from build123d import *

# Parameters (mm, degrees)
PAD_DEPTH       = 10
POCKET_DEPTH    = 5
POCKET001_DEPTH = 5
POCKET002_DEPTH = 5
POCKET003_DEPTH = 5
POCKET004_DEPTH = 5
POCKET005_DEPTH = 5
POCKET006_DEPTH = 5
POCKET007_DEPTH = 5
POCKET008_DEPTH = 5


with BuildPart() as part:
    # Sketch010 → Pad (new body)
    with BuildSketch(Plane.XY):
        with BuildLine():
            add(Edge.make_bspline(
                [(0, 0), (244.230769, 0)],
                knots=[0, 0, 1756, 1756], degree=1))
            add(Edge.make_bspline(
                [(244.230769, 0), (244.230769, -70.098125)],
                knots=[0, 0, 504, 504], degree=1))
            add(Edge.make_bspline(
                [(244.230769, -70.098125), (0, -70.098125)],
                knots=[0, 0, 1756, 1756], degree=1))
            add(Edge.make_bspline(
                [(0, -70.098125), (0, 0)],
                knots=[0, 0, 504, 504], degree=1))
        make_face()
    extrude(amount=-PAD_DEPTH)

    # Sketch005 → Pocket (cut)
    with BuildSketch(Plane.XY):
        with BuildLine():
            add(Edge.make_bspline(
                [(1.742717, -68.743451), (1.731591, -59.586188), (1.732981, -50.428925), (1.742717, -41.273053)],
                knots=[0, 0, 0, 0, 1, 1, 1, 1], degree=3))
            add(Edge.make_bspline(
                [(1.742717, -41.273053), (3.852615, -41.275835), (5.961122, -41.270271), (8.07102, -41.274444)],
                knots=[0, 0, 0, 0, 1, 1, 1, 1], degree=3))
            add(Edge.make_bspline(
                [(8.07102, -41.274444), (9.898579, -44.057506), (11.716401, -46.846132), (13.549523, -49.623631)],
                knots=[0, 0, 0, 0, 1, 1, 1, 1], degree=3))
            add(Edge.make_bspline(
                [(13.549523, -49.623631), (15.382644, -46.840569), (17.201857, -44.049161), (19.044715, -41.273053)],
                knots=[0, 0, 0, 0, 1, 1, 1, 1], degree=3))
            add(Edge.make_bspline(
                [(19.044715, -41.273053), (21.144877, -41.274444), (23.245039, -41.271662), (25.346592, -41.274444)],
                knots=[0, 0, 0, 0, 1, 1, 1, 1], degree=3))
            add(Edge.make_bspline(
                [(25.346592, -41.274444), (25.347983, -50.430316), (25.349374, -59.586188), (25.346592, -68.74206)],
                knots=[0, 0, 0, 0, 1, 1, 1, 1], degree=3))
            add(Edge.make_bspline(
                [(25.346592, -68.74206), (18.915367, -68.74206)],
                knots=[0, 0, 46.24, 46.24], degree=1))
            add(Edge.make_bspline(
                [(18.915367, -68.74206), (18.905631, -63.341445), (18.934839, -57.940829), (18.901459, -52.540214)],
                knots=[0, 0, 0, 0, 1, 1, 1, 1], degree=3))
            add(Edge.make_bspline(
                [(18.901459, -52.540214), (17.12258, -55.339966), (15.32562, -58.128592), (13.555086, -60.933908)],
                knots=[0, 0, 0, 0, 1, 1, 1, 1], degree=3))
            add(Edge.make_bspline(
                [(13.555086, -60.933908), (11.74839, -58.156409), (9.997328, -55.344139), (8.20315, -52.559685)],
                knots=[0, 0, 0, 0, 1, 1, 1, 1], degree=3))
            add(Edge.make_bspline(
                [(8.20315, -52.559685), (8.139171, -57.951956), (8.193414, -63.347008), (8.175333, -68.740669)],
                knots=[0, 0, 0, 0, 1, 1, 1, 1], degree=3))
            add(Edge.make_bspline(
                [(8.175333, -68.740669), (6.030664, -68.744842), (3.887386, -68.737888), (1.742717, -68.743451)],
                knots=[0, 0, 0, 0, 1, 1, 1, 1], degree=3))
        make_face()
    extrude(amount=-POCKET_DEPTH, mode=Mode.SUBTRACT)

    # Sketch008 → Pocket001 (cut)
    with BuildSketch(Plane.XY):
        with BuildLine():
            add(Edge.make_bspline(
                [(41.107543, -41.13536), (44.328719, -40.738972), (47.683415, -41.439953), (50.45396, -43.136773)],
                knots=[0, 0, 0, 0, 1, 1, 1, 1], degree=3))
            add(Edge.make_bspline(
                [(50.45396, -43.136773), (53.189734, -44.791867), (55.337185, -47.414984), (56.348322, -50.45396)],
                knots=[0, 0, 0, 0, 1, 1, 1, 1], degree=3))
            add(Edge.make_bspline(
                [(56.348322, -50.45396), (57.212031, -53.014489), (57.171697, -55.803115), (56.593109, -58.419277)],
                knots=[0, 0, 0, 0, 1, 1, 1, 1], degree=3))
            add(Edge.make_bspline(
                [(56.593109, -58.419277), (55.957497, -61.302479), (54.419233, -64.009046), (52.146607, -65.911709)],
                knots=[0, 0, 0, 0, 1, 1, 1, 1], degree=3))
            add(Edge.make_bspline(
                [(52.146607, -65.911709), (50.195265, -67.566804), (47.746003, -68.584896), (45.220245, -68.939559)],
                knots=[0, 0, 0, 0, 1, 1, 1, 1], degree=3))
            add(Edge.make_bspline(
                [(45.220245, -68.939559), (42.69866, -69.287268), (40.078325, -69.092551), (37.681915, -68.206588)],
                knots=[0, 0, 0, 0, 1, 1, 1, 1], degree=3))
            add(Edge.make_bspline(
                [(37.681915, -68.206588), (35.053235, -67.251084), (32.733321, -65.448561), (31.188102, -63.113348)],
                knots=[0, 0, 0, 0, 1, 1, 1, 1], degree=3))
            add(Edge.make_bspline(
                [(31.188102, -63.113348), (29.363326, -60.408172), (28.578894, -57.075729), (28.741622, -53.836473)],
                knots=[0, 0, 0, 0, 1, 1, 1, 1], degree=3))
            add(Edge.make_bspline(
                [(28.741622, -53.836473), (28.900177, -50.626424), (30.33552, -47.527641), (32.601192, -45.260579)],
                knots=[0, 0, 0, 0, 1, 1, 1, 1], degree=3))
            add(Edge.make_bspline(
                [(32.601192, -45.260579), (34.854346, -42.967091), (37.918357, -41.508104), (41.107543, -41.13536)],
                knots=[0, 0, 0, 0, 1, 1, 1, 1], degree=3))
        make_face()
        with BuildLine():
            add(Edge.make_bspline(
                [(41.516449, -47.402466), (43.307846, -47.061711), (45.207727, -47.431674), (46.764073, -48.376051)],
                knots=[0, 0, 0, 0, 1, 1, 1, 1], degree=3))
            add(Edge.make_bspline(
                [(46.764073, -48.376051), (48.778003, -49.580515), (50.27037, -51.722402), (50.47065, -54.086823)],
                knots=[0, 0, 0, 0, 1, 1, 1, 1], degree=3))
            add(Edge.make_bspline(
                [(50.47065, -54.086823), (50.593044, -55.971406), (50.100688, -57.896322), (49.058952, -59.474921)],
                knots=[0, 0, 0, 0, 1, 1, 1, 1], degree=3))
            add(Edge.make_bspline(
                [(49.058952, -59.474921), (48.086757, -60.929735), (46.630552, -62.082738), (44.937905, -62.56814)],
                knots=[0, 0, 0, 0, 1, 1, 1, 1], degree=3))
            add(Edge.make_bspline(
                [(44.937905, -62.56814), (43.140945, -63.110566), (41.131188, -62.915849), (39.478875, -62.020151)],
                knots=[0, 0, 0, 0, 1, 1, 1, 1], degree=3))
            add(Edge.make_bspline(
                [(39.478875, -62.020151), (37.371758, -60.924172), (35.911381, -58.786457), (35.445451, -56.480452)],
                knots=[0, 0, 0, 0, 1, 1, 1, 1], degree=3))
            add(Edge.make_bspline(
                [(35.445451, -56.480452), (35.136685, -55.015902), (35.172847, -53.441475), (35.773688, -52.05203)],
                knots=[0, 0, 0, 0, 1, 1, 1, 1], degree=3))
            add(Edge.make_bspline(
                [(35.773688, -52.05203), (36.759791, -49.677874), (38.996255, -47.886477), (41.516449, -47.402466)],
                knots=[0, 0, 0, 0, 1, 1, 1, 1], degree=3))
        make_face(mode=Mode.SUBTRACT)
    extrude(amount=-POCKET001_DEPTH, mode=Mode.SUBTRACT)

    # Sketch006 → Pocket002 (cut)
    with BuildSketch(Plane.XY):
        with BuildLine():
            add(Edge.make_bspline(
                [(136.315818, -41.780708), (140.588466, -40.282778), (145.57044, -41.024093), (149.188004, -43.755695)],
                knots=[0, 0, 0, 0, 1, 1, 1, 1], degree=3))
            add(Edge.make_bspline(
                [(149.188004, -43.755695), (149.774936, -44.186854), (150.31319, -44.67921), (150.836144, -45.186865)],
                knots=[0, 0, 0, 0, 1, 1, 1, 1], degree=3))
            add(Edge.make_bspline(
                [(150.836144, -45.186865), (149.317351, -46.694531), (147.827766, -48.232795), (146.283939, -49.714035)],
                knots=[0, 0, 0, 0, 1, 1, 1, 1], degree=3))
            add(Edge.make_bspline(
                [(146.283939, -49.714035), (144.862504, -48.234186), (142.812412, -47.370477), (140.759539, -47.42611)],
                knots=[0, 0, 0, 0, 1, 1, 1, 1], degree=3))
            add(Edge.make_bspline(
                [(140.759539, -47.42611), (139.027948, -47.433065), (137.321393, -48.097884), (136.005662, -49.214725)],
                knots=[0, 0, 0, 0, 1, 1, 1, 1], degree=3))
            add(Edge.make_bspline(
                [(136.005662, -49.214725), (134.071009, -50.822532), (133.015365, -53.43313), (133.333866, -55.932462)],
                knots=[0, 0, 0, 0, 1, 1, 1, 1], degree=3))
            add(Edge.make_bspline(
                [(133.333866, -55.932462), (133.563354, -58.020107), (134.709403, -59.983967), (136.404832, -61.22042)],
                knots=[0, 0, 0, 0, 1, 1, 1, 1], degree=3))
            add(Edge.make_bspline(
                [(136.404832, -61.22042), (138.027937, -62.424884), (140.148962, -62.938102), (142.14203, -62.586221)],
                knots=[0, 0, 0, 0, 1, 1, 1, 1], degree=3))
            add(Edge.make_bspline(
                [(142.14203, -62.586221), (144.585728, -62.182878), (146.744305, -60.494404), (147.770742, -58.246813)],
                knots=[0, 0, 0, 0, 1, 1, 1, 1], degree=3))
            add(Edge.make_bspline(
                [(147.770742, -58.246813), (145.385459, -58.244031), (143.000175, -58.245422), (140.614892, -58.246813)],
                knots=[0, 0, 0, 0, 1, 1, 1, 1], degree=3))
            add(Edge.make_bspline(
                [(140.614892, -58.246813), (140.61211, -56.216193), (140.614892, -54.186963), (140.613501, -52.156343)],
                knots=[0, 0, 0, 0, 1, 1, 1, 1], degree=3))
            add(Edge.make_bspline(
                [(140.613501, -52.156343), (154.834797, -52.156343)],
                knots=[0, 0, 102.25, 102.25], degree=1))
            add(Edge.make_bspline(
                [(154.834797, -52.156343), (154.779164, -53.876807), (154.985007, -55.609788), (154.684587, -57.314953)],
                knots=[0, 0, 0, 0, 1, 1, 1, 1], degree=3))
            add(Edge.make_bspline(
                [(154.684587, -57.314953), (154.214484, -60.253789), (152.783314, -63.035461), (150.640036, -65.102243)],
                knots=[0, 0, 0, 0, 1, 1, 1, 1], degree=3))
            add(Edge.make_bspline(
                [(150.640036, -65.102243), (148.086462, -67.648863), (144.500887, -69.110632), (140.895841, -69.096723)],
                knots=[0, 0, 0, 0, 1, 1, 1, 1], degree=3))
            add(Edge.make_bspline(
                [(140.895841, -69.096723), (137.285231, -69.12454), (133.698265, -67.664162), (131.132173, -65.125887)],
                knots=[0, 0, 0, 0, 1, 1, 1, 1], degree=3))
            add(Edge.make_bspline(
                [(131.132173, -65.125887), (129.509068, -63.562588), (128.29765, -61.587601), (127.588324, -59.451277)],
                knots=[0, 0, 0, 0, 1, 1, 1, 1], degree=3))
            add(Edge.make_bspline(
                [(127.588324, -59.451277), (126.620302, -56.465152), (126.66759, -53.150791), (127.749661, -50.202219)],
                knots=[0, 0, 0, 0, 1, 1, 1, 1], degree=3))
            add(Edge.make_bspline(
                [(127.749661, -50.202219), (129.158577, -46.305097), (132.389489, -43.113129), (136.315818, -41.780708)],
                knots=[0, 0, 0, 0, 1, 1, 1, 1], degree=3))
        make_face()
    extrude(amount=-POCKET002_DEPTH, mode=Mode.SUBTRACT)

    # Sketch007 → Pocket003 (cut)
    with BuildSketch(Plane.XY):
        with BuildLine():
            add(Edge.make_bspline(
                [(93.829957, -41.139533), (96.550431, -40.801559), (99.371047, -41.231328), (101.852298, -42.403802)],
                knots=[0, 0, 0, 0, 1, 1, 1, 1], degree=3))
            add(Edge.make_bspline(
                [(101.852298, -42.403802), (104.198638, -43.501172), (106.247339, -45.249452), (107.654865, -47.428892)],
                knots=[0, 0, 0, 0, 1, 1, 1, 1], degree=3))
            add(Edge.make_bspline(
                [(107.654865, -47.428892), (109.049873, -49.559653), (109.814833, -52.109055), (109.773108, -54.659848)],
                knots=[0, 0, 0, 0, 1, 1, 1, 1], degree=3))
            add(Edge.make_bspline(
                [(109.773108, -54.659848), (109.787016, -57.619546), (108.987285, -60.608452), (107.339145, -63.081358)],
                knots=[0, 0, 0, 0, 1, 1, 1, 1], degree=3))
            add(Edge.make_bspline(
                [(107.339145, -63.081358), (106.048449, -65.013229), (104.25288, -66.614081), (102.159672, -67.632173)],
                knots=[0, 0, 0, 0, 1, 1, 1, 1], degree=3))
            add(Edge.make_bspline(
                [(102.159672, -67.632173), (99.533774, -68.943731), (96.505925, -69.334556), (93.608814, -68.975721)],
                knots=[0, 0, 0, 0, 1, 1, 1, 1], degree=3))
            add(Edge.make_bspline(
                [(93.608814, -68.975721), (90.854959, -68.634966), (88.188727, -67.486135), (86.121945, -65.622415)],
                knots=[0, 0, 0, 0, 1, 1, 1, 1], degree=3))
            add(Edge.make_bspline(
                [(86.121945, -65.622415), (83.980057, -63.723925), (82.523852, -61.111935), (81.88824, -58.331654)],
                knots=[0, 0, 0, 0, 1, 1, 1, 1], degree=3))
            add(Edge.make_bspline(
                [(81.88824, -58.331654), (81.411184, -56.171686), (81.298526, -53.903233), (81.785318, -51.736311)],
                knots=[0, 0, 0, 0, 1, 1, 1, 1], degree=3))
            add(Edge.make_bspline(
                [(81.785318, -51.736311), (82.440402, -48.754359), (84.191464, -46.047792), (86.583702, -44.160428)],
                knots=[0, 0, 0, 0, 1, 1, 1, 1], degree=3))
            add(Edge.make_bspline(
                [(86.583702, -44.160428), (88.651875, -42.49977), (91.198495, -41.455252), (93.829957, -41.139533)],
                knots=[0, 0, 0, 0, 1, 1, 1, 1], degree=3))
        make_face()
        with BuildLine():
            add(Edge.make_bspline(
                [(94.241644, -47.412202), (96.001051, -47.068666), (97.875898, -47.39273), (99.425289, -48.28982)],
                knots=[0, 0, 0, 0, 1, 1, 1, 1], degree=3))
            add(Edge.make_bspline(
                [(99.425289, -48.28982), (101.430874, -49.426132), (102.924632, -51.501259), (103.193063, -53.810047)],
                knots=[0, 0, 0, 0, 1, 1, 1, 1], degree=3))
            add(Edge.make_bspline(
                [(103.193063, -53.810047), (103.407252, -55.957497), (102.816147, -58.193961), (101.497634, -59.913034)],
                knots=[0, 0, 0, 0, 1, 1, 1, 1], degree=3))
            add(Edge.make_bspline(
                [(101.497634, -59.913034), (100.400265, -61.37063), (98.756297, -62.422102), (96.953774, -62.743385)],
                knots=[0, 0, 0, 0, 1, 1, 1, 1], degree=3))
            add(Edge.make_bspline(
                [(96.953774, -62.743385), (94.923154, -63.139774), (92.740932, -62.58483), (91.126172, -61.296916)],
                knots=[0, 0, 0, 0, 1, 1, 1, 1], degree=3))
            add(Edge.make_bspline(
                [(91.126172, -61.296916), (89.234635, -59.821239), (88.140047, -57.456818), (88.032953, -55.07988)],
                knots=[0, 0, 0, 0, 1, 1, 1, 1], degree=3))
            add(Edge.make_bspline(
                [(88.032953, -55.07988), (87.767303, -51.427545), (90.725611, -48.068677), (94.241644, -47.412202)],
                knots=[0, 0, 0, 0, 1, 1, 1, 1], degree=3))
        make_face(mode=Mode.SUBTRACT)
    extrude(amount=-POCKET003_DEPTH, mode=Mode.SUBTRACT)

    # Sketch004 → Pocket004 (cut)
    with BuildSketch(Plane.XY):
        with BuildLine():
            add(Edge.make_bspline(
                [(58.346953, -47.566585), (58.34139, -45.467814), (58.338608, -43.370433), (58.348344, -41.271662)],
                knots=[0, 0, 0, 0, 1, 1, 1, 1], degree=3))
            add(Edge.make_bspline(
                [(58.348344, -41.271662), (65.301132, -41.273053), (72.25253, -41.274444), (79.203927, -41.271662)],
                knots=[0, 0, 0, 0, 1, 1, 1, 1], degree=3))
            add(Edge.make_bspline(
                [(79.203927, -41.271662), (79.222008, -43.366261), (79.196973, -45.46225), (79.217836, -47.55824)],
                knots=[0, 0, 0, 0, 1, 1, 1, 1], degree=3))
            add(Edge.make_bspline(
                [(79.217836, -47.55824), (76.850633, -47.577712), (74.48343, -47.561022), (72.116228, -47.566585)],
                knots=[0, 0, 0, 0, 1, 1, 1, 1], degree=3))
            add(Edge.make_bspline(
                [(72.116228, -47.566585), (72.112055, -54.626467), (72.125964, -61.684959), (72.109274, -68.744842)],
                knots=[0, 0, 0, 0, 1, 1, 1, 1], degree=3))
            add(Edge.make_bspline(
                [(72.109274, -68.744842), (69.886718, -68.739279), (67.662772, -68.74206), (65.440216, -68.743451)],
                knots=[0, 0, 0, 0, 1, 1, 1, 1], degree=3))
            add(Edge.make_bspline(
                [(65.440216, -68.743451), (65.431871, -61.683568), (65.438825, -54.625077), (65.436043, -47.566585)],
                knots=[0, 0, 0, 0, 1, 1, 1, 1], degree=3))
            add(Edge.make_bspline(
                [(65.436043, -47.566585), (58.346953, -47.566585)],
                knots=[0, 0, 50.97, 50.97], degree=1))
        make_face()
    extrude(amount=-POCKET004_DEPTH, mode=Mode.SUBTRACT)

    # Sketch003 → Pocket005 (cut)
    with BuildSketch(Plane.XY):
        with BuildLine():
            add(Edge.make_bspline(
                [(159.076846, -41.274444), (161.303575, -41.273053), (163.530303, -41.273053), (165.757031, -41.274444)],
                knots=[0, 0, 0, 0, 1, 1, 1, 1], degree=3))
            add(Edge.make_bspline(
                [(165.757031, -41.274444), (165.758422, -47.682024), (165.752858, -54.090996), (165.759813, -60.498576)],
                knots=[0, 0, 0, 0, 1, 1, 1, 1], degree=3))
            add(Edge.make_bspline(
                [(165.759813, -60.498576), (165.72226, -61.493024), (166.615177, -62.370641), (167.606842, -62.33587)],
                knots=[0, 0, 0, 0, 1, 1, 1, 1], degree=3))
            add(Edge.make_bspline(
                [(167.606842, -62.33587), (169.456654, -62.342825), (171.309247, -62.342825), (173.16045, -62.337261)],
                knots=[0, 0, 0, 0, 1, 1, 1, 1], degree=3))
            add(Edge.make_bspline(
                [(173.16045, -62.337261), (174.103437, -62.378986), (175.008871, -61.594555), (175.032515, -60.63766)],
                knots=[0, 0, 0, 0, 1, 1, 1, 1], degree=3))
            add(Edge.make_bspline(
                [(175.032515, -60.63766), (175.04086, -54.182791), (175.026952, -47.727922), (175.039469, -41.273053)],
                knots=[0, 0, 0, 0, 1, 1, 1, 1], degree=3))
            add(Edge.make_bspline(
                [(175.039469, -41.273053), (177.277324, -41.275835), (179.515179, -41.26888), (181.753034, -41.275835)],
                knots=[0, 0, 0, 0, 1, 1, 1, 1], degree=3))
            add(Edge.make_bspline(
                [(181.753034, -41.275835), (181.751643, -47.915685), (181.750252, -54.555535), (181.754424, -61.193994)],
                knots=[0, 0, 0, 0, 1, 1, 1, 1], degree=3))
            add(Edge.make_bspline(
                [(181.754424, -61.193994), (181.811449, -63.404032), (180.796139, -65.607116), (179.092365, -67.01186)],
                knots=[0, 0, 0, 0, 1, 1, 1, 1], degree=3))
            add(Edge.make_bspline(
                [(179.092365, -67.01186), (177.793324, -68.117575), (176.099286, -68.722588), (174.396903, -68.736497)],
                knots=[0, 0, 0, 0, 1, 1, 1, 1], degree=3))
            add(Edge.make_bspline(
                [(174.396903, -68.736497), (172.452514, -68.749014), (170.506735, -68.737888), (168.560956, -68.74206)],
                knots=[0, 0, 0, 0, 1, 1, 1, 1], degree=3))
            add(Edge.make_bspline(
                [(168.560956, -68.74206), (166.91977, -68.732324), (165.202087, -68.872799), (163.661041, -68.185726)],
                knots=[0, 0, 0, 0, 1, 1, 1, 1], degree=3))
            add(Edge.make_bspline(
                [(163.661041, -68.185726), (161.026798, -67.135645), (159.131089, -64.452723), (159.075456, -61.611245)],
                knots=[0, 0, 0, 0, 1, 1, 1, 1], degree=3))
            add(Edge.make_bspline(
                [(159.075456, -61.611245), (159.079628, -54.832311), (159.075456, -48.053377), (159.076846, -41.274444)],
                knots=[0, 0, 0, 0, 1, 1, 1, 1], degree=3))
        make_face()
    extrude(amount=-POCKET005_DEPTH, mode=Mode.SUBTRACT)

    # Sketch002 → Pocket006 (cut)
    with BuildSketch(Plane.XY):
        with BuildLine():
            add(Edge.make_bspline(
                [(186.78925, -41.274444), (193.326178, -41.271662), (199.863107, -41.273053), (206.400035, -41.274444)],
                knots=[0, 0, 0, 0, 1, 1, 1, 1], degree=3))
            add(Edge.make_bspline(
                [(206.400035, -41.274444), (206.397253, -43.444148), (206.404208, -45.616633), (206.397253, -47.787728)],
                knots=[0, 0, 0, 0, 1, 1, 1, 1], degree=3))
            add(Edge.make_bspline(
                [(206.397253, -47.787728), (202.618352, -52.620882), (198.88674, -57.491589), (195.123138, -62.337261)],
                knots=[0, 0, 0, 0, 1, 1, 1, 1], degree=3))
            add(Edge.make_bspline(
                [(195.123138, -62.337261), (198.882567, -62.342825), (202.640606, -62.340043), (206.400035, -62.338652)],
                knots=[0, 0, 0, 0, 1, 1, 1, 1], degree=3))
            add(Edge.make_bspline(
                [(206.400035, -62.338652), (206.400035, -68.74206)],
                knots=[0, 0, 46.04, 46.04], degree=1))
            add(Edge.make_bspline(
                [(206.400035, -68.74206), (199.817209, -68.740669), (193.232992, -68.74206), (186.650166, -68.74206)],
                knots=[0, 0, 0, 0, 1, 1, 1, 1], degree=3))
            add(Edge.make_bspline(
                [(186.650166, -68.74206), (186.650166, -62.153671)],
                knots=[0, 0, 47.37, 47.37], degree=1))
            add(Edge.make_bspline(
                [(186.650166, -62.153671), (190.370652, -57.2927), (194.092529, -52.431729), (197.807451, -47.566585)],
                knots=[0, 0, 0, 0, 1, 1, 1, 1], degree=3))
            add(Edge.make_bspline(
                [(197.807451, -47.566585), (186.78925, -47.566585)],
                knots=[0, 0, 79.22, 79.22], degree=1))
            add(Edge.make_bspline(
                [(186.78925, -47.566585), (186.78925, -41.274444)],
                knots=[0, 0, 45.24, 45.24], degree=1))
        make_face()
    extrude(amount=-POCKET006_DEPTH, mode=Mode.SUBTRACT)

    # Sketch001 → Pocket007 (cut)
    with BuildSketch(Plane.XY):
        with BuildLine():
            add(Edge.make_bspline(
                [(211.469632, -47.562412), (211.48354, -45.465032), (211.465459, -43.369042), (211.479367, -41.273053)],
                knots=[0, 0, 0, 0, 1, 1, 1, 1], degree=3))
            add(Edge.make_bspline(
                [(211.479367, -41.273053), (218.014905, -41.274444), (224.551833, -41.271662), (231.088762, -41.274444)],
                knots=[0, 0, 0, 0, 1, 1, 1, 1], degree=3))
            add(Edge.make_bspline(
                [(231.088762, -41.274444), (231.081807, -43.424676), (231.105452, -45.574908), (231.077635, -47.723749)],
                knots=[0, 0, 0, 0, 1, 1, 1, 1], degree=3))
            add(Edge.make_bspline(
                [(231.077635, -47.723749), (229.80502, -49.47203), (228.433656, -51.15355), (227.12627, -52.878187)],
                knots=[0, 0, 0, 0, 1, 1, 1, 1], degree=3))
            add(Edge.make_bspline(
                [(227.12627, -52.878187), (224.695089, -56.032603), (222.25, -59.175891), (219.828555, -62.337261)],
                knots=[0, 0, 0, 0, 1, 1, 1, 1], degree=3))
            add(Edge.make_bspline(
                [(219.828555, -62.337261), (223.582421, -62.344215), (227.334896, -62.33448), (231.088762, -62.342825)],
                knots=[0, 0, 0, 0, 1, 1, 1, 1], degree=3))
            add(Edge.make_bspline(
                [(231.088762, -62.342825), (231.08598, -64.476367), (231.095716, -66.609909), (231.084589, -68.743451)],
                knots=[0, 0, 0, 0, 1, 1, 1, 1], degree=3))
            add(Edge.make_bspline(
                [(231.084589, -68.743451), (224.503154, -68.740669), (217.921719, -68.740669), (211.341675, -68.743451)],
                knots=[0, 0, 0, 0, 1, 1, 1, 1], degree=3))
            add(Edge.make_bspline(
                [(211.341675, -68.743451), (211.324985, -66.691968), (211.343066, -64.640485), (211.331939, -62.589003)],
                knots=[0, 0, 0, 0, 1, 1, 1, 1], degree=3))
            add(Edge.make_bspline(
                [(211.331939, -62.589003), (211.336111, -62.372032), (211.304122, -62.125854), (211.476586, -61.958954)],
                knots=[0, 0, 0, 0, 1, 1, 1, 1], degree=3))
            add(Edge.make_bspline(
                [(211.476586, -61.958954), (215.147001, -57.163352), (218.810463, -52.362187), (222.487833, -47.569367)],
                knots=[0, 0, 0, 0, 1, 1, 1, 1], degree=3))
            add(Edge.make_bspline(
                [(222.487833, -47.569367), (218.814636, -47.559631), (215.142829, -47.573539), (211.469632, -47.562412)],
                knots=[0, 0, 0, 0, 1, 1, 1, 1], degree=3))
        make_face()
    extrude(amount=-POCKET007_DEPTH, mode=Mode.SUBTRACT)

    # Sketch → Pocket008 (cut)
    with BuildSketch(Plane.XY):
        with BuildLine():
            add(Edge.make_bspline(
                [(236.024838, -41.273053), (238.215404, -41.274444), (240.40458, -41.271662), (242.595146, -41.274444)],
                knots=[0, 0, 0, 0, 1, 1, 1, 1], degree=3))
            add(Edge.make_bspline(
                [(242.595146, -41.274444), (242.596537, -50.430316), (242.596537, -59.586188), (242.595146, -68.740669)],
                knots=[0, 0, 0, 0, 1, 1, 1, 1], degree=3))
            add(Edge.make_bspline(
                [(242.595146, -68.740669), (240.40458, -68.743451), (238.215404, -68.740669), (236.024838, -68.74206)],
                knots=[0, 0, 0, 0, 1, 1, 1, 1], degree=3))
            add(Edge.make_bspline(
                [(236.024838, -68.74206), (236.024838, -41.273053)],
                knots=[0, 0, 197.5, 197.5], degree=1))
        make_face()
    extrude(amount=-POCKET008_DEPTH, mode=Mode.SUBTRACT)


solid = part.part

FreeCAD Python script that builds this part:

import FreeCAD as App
import Part
import Sketcher
from FreeCAD import Vector

doc = App.newDocument("Part")
body = doc.addObject("PartDesign::Body", "Body")

# Sketch on XY plane
sketch1 = doc.addObject("Sketcher::SketchObject", "Sketch")
body.addObject(sketch1)
sketch1.AttachmentSupport = (doc.XY_Plane, [""])
sketch1.MapMode = "FlatFace"
sketch1.addGeometry([
    Part.BSplineCurve([Vector(0, 0, 0), Vector(244.230769, 0, 0)], [2, 2], [0, 1756], False, 1, [1, 1], False),
    Part.BSplineCurve([Vector(0, -70.098125, 0), Vector(0, 0, 0)], [2, 2], [0, 504], False, 1, [1, 1], False),
    Part.BSplineCurve([Vector(244.230769, -70.098125, 0), Vector(0, -70.098125, 0)], [2, 2], [0, 1756], False, 1, [1, 1], False),
    Part.BSplineCurve([Vector(244.230769, 0, 0), Vector(244.230769, -70.098125, 0)], [2, 2], [0, 504], False, 1, [1, 1], False),
], False)
sketch1.addConstraint([
    Sketcher.Constraint("Block", 0),
    Sketcher.Constraint("Block", 1),
    Sketcher.Constraint("Block", 2),
    Sketcher.Constraint("Block", 3),
])
pad1 = doc.addObject("PartDesign::Pad", "Pad")
body.addObject(pad1)
pad1.Profile = sketch1
pad1.Length = 10
pad1.Reversed = True

# Sketch on XY plane
sketch2 = doc.addObject("Sketcher::SketchObject", "Sketch001")
body.addObject(sketch2)
sketch2.AttachmentSupport = (doc.XY_Plane, [""])
sketch2.MapMode = "FlatFace"
sketch2.addGeometry([
    Part.BSplineCurve([Vector(1.742717, -68.743451, 0), Vector(1.731591, -59.586188, 0), Vector(1.732981, -50.428925, 0), Vector(1.742717, -41.273053, 0)], [4, 4], [0, 1], False, 3, [1, 1, 1, 1], False),  # 0
    Part.BSplineCurve([Vector(8.175333, -68.740669, 0), Vector(6.030664, -68.744842, 0), Vector(3.887386, -68.737888, 0), Vector(1.742717, -68.743451, 0)], [4, 4], [0, 1], False, 3, [1, 1, 1, 1], False),  # 1
    Part.BSplineCurve([Vector(8.20315, -52.559685, 0), Vector(8.139171, -57.951956, 0), Vector(8.193414, -63.347008, 0), Vector(8.175333, -68.740669, 0)], [4, 4], [0, 1], False, 3, [1, 1, 1, 1], False),  # 2
    Part.BSplineCurve([Vector(13.555086, -60.933908, 0), Vector(11.74839, -58.156409, 0), Vector(9.997328, -55.344139, 0), Vector(8.20315, -52.559685, 0)], [4, 4], [0, 1], False, 3, [1, 1, 1, 1], False),  # 3
    Part.BSplineCurve([Vector(18.901459, -52.540214, 0), Vector(17.12258, -55.339966, 0), Vector(15.32562, -58.128592, 0), Vector(13.555086, -60.933908, 0)], [4, 4], [0, 1], False, 3, [1, 1, 1, 1], False),  # 4
    Part.BSplineCurve([Vector(18.915367, -68.74206, 0), Vector(18.905631, -63.341445, 0), Vector(18.934839, -57.940829, 0), Vector(18.901459, -52.540214, 0)], [4, 4], [0, 1], False, 3, [1, 1, 1, 1], False),  # 5
    Part.BSplineCurve([Vector(25.346592, -68.74206, 0), Vector(18.915367, -68.74206, 0)], [2, 2], [0, 46.24], False, 1, [1, 1], False),  # 6
    Part.BSplineCurve([Vector(25.346592, -41.274444, 0), Vector(25.347983, -50.430316, 0), Vector(25.349374, -59.586188, 0), Vector(25.346592, -68.74206, 0)], [4, 4], [0, 1], False, 3, [1, 1, 1, 1], False),  # 7
    Part.BSplineCurve([Vector(19.044715, -41.273053, 0), Vector(21.144877, -41.274444, 0), Vector(23.245039, -41.271662, 0), Vector(25.346592, -41.274444, 0)], [4, 4], [0, 1], False, 3, [1, 1, 1, 1], False),  # 8
    Part.BSplineCurve([Vector(13.549523, -49.623631, 0), Vector(15.382644, -46.840569, 0), Vector(17.201857, -44.049161, 0), Vector(19.044715, -41.273053, 0)], [4, 4], [0, 1], False, 3, [1, 1, 1, 1], False),  # 9
    Part.BSplineCurve([Vector(8.07102, -41.274444, 0), Vector(9.898579, -44.057506, 0), Vector(11.716401, -46.846132, 0), Vector(13.549523, -49.623631, 0)], [4, 4], [0, 1], False, 3, [1, 1, 1, 1], False),  # 10
    Part.BSplineCurve([Vector(1.742717, -41.273053, 0), Vector(3.852615, -41.275835, 0), Vector(5.961122, -41.270271, 0), Vector(8.07102, -41.274444, 0)], [4, 4], [0, 1], False, 3, [1, 1, 1, 1], False),  # 11
], False)
sketch2.addConstraint([
    Sketcher.Constraint("Block", 0),
    Sketcher.Constraint("Block", 1),
    Sketcher.Constraint("Block", 2),
    Sketcher.Constraint("Block", 3),
    Sketcher.Constraint("Block", 4),
    Sketcher.Constraint("Block", 5),
    Sketcher.Constraint("Block", 6),
    Sketcher.Constraint("Block", 7),
    Sketcher.Constraint("Block", 8),
    Sketcher.Constraint("Block", 9),
    Sketcher.Constraint("Block", 10),
    Sketcher.Constraint("Block", 11),
])
pocket1 = doc.addObject("PartDesign::Pocket", "Pocket")
body.addObject(pocket1)
pocket1.Profile = sketch2
pocket1.Length = 5

# Sketch on XY plane
sketch3 = doc.addObject("Sketcher::SketchObject", "Sketch002")
body.addObject(sketch3)
sketch3.AttachmentSupport = (doc.XY_Plane, [""])
sketch3.MapMode = "FlatFace"
sketch3.addGeometry([
    Part.BSplineCurve([Vector(41.107543, -41.13536, 0), Vector(44.328719, -40.738972, 0), Vector(47.683415, -41.439953, 0), Vector(50.45396, -43.136773, 0)], [4, 4], [0, 1], False, 3, [1, 1, 1, 1], False),  # 0
    Part.BSplineCurve([Vector(32.601192, -45.260579, 0), Vector(34.854346, -42.967091, 0), Vector(37.918357, -41.508104, 0), Vector(41.107543, -41.13536, 0)], [4, 4], [0, 1], False, 3, [1, 1, 1, 1], False),  # 1
    Part.BSplineCurve([Vector(28.741622, -53.836473, 0), Vector(28.900177, -50.626424, 0), Vector(30.33552, -47.527641, 0), Vector(32.601192, -45.260579, 0)], [4, 4], [0, 1], False, 3, [1, 1, 1, 1], False),  # 2
    Part.BSplineCurve([Vector(31.188102, -63.113348, 0), Vector(29.363326, -60.408172, 0), Vector(28.578894, -57.075729, 0), Vector(28.741622, -53.836473, 0)], [4, 4], [0, 1], False, 3, [1, 1, 1, 1], False),  # 3
    Part.BSplineCurve([Vector(37.681915, -68.206588, 0), Vector(35.053235, -67.251084, 0), Vector(32.733321, -65.448561, 0), Vector(31.188102, -63.113348, 0)], [4, 4], [0, 1], False, 3, [1, 1, 1, 1], False),  # 4
    Part.BSplineCurve([Vector(45.220245, -68.939559, 0), Vector(42.69866, -69.287268, 0), Vector(40.078325, -69.092551, 0), Vector(37.681915, -68.206588, 0)], [4, 4], [0, 1], False, 3, [1, 1, 1, 1], False),  # 5
    Part.BSplineCurve([Vector(52.146607, -65.911709, 0), Vector(50.195265, -67.566804, 0), Vector(47.746003, -68.584896, 0), Vector(45.220245, -68.939559, 0)], [4, 4], [0, 1], False, 3, [1, 1, 1, 1], False),  # 6
    Part.BSplineCurve([Vector(56.593109, -58.419277, 0), Vector(55.957497, -61.302479, 0), Vector(54.419233, -64.009046, 0), Vector(52.146607, -65.911709, 0)], [4, 4], [0, 1], False, 3, [1, 1, 1, 1], False),  # 7
    Part.BSplineCurve([Vector(56.348322, -50.45396, 0), Vector(57.212031, -53.014489, 0), Vector(57.171697, -55.803115, 0), Vector(56.593109, -58.419277, 0)], [4, 4], [0, 1], False, 3, [1, 1, 1, 1], False),  # 8
    Part.BSplineCurve([Vector(50.45396, -43.136773, 0), Vector(53.189734, -44.791867, 0), Vector(55.337185, -47.414984, 0), Vector(56.348322, -50.45396, 0)], [4, 4], [0, 1], False, 3, [1, 1, 1, 1], False),  # 9
    Part.BSplineCurve([Vector(41.516449, -47.402466, 0), Vector(43.307846, -47.061711, 0), Vector(45.207727, -47.431674, 0), Vector(46.764073, -48.376051, 0)], [4, 4], [0, 1], False, 3, [1, 1, 1, 1], False),  # 10
    Part.BSplineCurve([Vector(46.764073, -48.376051, 0), Vector(48.778003, -49.580515, 0), Vector(50.27037, -51.722402, 0), Vector(50.47065, -54.086823, 0)], [4, 4], [0, 1], False, 3, [1, 1, 1, 1], False),  # 11
    Part.BSplineCurve([Vector(50.47065, -54.086823, 0), Vector(50.593044, -55.971406, 0), Vector(50.100688, -57.896322, 0), Vector(49.058952, -59.474921, 0)], [4, 4], [0, 1], False, 3, [1, 1, 1, 1], False),  # 12
    Part.BSplineCurve([Vector(49.058952, -59.474921, 0), Vector(48.086757, -60.929735, 0), Vector(46.630552, -62.082738, 0), Vector(44.937905, -62.56814, 0)], [4, 4], [0, 1], False, 3, [1, 1, 1, 1], False),  # 13
    Part.BSplineCurve([Vector(44.937905, -62.56814, 0), Vector(43.140945, -63.110566, 0), Vector(41.131188, -62.915849, 0), Vector(39.478875, -62.020151, 0)], [4, 4], [0, 1], False, 3, [1, 1, 1, 1], False),  # 14
    Part.BSplineCurve([Vector(39.478875, -62.020151, 0), Vector(37.371758, -60.924172, 0), Vector(35.911381, -58.786457, 0), Vector(35.445451, -56.480452, 0)], [4, 4], [0, 1], False, 3, [1, 1, 1, 1], False),  # 15
    Part.BSplineCurve([Vector(35.445451, -56.480452, 0), Vector(35.136685, -55.015902, 0), Vector(35.172847, -53.441475, 0), Vector(35.773688, -52.05203, 0)], [4, 4], [0, 1], False, 3, [1, 1, 1, 1], False),  # 16
    Part.BSplineCurve([Vector(35.773688, -52.05203, 0), Vector(36.759791, -49.677874, 0), Vector(38.996255, -47.886477, 0), Vector(41.516449, -47.402466, 0)], [4, 4], [0, 1], False, 3, [1, 1, 1, 1], False),  # 17
], False)
sketch3.addConstraint([
    Sketcher.Constraint("Block", 0),
    Sketcher.Constraint("Block", 1),
    Sketcher.Constraint("Block", 2),
    Sketcher.Constraint("Block", 3),
    Sketcher.Constraint("Block", 4),
    Sketcher.Constraint("Block", 5),
    Sketcher.Constraint("Block", 6),
    Sketcher.Constraint("Block", 7),
    Sketcher.Constraint("Block", 8),
    Sketcher.Constraint("Block", 9),
    Sketcher.Constraint("Block", 10),
    Sketcher.Constraint("Block", 11),
    Sketcher.Constraint("Block", 12),
    Sketcher.Constraint("Block", 13),
    Sketcher.Constraint("Block", 14),
    Sketcher.Constraint("Block", 15),
    Sketcher.Constraint("Block", 16),
    Sketcher.Constraint("Block", 17),
])
pocket2 = doc.addObject("PartDesign::Pocket", "Pocket001")
body.addObject(pocket2)
pocket2.Profile = sketch3
pocket2.Length = 5

# Sketch on XY plane
sketch4 = doc.addObject("Sketcher::SketchObject", "Sketch003")
body.addObject(sketch4)
sketch4.AttachmentSupport = (doc.XY_Plane, [""])
sketch4.MapMode = "FlatFace"
sketch4.addGeometry([
    Part.BSplineCurve([Vector(136.315818, -41.780708, 0), Vector(140.588466, -40.282778, 0), Vector(145.57044, -41.024093, 0), Vector(149.188004, -43.755695, 0)], [4, 4], [0, 1], False, 3, [1, 1, 1, 1], False),  # 0
    Part.BSplineCurve([Vector(127.749661, -50.202219, 0), Vector(129.158577, -46.305097, 0), Vector(132.389489, -43.113129, 0), Vector(136.315818, -41.780708, 0)], [4, 4], [0, 1], False, 3, [1, 1, 1, 1], False),  # 1
    Part.BSplineCurve([Vector(127.588324, -59.451277, 0), Vector(126.620302, -56.465152, 0), Vector(126.66759, -53.150791, 0), Vector(127.749661, -50.202219, 0)], [4, 4], [0, 1], False, 3, [1, 1, 1, 1], False),  # 2
    Part.BSplineCurve([Vector(131.132173, -65.125887, 0), Vector(129.509068, -63.562588, 0), Vector(128.29765, -61.587601, 0), Vector(127.588324, -59.451277, 0)], [4, 4], [0, 1], False, 3, [1, 1, 1, 1], False),  # 3
    Part.BSplineCurve([Vector(140.895841, -69.096723, 0), Vector(137.285231, -69.12454, 0), Vector(133.698265, -67.664162, 0), Vector(131.132173, -65.125887, 0)], [4, 4], [0, 1], False, 3, [1, 1, 1, 1], False),  # 4
    Part.BSplineCurve([Vector(150.640036, -65.102243, 0), Vector(148.086462, -67.648863, 0), Vector(144.500887, -69.110632, 0), Vector(140.895841, -69.096723, 0)], [4, 4], [0, 1], False, 3, [1, 1, 1, 1], False),  # 5
    Part.BSplineCurve([Vector(154.684587, -57.314953, 0), Vector(154.214484, -60.253789, 0), Vector(152.783314, -63.035461, 0), Vector(150.640036, -65.102243, 0)], [4, 4], [0, 1], False, 3, [1, 1, 1, 1], False),  # 6
    Part.BSplineCurve([Vector(154.834797, -52.156343, 0), Vector(154.779164, -53.876807, 0), Vector(154.985007, -55.609788, 0), Vector(154.684587, -57.314953, 0)], [4, 4], [0, 1], False, 3, [1, 1, 1, 1], False),  # 7
    Part.BSplineCurve([Vector(140.613501, -52.156343, 0), Vector(154.834797, -52.156343, 0)], [2, 2], [0, 102.25], False, 1, [1, 1], False),  # 8
    Part.BSplineCurve([Vector(140.614892, -58.246813, 0), Vector(140.61211, -56.216193, 0), Vector(140.614892, -54.186963, 0), Vector(140.613501, -52.156343, 0)], [4, 4], [0, 1], False, 3, [1, 1, 1, 1], False),  # 9
    Part.BSplineCurve([Vector(147.770742, -58.246813, 0), Vector(145.385459, -58.244031, 0), Vector(143.000175, -58.245422, 0), Vector(140.614892, -58.246813, 0)], [4, 4], [0, 1], False, 3, [1, 1, 1, 1], False),  # 10
    Part.BSplineCurve([Vector(142.14203, -62.586221, 0), Vector(144.585728, -62.182878, 0), Vector(146.744305, -60.494404, 0), Vector(147.770742, -58.246813, 0)], [4, 4], [0, 1], False, 3, [1, 1, 1, 1], False),  # 11
    Part.BSplineCurve([Vector(136.404832, -61.22042, 0), Vector(138.027937, -62.424884, 0), Vector(140.148962, -62.938102, 0), Vector(142.14203, -62.586221, 0)], [4, 4], [0, 1], False, 3, [1, 1, 1, 1], False),  # 12
    Part.BSplineCurve([Vector(133.333866, -55.932462, 0), Vector(133.563354, -58.020107, 0), Vector(134.709403, -59.983967, 0), Vector(136.404832, -61.22042, 0)], [4, 4], [0, 1], False, 3, [1, 1, 1, 1], False),  # 13
    Part.BSplineCurve([Vector(136.005662, -49.214725, 0), Vector(134.071009, -50.822532, 0), Vector(133.015365, -53.43313, 0), Vector(133.333866, -55.932462, 0)], [4, 4], [0, 1], False, 3, [1, 1, 1, 1], False),  # 14
    Part.BSplineCurve([Vector(140.759539, -47.42611, 0), Vector(139.027948, -47.433065, 0), Vector(137.321393, -48.097884, 0), Vector(136.005662, -49.214725, 0)], [4, 4], [0, 1], False, 3, [1, 1, 1, 1], False),  # 15
    Part.BSplineCurve([Vector(146.283939, -49.714035, 0), Vector(144.862504, -48.234186, 0), Vector(142.812412, -47.370477, 0), Vector(140.759539, -47.42611, 0)], [4, 4], [0, 1], False, 3, [1, 1, 1, 1], False),  # 16
    Part.BSplineCurve([Vector(150.836144, -45.186865, 0), Vector(149.317351, -46.694531, 0), Vector(147.827766, -48.232795, 0), Vector(146.283939, -49.714035, 0)], [4, 4], [0, 1], False, 3, [1, 1, 1, 1], False),  # 17
    Part.BSplineCurve([Vector(149.188004, -43.755695, 0), Vector(149.774936, -44.186854, 0), Vector(150.31319, -44.67921, 0), Vector(150.836144, -45.186865, 0)], [4, 4], [0, 1], False, 3, [1, 1, 1, 1], False),  # 18
], False)
sketch4.addConstraint([
    Sketcher.Constraint("Block", 0),
    Sketcher.Constraint("Block", 1),
    Sketcher.Constraint("Block", 2),
    Sketcher.Constraint("Block", 3),
    Sketcher.Constraint("Block", 4),
    Sketcher.Constraint("Block", 5),
    Sketcher.Constraint("Block", 6),
    Sketcher.Constraint("Block", 7),
    Sketcher.Constraint("Block", 8),
    Sketcher.Constraint("Block", 9),
    Sketcher.Constraint("Block", 10),
    Sketcher.Constraint("Block", 11),
    Sketcher.Constraint("Block", 12),
    Sketcher.Constraint("Block", 13),
    Sketcher.Constraint("Block", 14),
    Sketcher.Constraint("Block", 15),
    Sketcher.Constraint("Block", 16),
    Sketcher.Constraint("Block", 17),
    Sketcher.Constraint("Block", 18),
])
pocket3 = doc.addObject("PartDesign::Pocket", "Pocket002")
body.addObject(pocket3)
pocket3.Profile = sketch4
pocket3.Length = 5

# Sketch on XY plane
sketch5 = doc.addObject("Sketcher::SketchObject", "Sketch004")
body.addObject(sketch5)
sketch5.AttachmentSupport = (doc.XY_Plane, [""])
sketch5.MapMode = "FlatFace"
sketch5.addGeometry([
    Part.BSplineCurve([Vector(93.829957, -41.139533, 0), Vector(96.550431, -40.801559, 0), Vector(99.371047, -41.231328, 0), Vector(101.852298, -42.403802, 0)], [4, 4], [0, 1], False, 3, [1, 1, 1, 1], False),  # 0
    Part.BSplineCurve([Vector(86.583702, -44.160428, 0), Vector(88.651875, -42.49977, 0), Vector(91.198495, -41.455252, 0), Vector(93.829957, -41.139533, 0)], [4, 4], [0, 1], False, 3, [1, 1, 1, 1], False),  # 1
    Part.BSplineCurve([Vector(81.785318, -51.736311, 0), Vector(82.440402, -48.754359, 0), Vector(84.191464, -46.047792, 0), Vector(86.583702, -44.160428, 0)], [4, 4], [0, 1], False, 3, [1, 1, 1, 1], False),  # 2
    Part.BSplineCurve([Vector(81.88824, -58.331654, 0), Vector(81.411184, -56.171686, 0), Vector(81.298526, -53.903233, 0), Vector(81.785318, -51.736311, 0)], [4, 4], [0, 1], False, 3, [1, 1, 1, 1], False),  # 3
    Part.BSplineCurve([Vector(86.121945, -65.622415, 0), Vector(83.980057, -63.723925, 0), Vector(82.523852, -61.111935, 0), Vector(81.88824, -58.331654, 0)], [4, 4], [0, 1], False, 3, [1, 1, 1, 1], False),  # 4
    Part.BSplineCurve([Vector(93.608814, -68.975721, 0), Vector(90.854959, -68.634966, 0), Vector(88.188727, -67.486135, 0), Vector(86.121945, -65.622415, 0)], [4, 4], [0, 1], False, 3, [1, 1, 1, 1], False),  # 5
    Part.BSplineCurve([Vector(102.159672, -67.632173, 0), Vector(99.533774, -68.943731, 0), Vector(96.505925, -69.334556, 0), Vector(93.608814, -68.975721, 0)], [4, 4], [0, 1], False, 3, [1, 1, 1, 1], False),  # 6
    Part.BSplineCurve([Vector(107.339145, -63.081358, 0), Vector(106.048449, -65.013229, 0), Vector(104.25288, -66.614081, 0), Vector(102.159672, -67.632173, 0)], [4, 4], [0, 1], False, 3, [1, 1, 1, 1], False),  # 7
    Part.BSplineCurve([Vector(109.773108, -54.659848, 0), Vector(109.787016, -57.619546, 0), Vector(108.987285, -60.608452, 0), Vector(107.339145, -63.081358, 0)], [4, 4], [0, 1], False, 3, [1, 1, 1, 1], False),  # 8
    Part.BSplineCurve([Vector(107.654865, -47.428892, 0), Vector(109.049873, -49.559653, 0), Vector(109.814833, -52.109055, 0), Vector(109.773108, -54.659848, 0)], [4, 4], [0, 1], False, 3, [1, 1, 1, 1], False),  # 9
    Part.BSplineCurve([Vector(101.852298, -42.403802, 0), Vector(104.198638, -43.501172, 0), Vector(106.247339, -45.249452, 0), Vector(107.654865, -47.428892, 0)], [4, 4], [0, 1], False, 3, [1, 1, 1, 1], False),  # 10
    Part.BSplineCurve([Vector(94.241644, -47.412202, 0), Vector(96.001051, -47.068666, 0), Vector(97.875898, -47.39273, 0), Vector(99.425289, -48.28982, 0)], [4, 4], [0, 1], False, 3, [1, 1, 1, 1], False),  # 11
    Part.BSplineCurve([Vector(99.425289, -48.28982, 0), Vector(101.430874, -49.426132, 0), Vector(102.924632, -51.501259, 0), Vector(103.193063, -53.810047, 0)], [4, 4], [0, 1], False, 3, [1, 1, 1, 1], False),  # 12
    Part.BSplineCurve([Vector(103.193063, -53.810047, 0), Vector(103.407252, -55.957497, 0), Vector(102.816147, -58.193961, 0), Vector(101.497634, -59.913034, 0)], [4, 4], [0, 1], False, 3, [1, 1, 1, 1], False),  # 13
    Part.BSplineCurve([Vector(101.497634, -59.913034, 0), Vector(100.400265, -61.37063, 0), Vector(98.756297, -62.422102, 0), Vector(96.953774, -62.743385, 0)], [4, 4], [0, 1], False, 3, [1, 1, 1, 1], False),  # 14
    Part.BSplineCurve([Vector(96.953774, -62.743385, 0), Vector(94.923154, -63.139774, 0), Vector(92.740932, -62.58483, 0), Vector(91.126172, -61.296916, 0)], [4, 4], [0, 1], False, 3, [1, 1, 1, 1], False),  # 15
    Part.BSplineCurve([Vector(91.126172, -61.296916, 0), Vector(89.234635, -59.821239, 0), Vector(88.140047, -57.456818, 0), Vector(88.032953, -55.07988, 0)], [4, 4], [0, 1], False, 3, [1, 1, 1, 1], False),  # 16
    Part.BSplineCurve([Vector(88.032953, -55.07988, 0), Vector(87.767303, -51.427545, 0), Vector(90.725611, -48.068677, 0), Vector(94.241644, -47.412202, 0)], [4, 4], [0, 1], False, 3, [1, 1, 1, 1], False),  # 17
], False)
sketch5.addConstraint([
    Sketcher.Constraint("Block", 0),
    Sketcher.Constraint("Block", 1),
    Sketcher.Constraint("Block", 2),
    Sketcher.Constraint("Block", 3),
    Sketcher.Constraint("Block", 4),
    Sketcher.Constraint("Block", 5),
    Sketcher.Constraint("Block", 6),
    Sketcher.Constraint("Block", 7),
    Sketcher.Constraint("Block", 8),
    Sketcher.Constraint("Block", 9),
    Sketcher.Constraint("Block", 10),
    Sketcher.Constraint("Block", 11),
    Sketcher.Constraint("Block", 12),
    Sketcher.Constraint("Block", 13),
    Sketcher.Constraint("Block", 14),
    Sketcher.Constraint("Block", 15),
    Sketcher.Constraint("Block", 16),
    Sketcher.Constraint("Block", 17),
])
pocket4 = doc.addObject("PartDesign::Pocket", "Pocket003")
body.addObject(pocket4)
pocket4.Profile = sketch5
pocket4.Length = 5

# Sketch on XY plane
sketch6 = doc.addObject("Sketcher::SketchObject", "Sketch005")
body.addObject(sketch6)
sketch6.AttachmentSupport = (doc.XY_Plane, [""])
sketch6.MapMode = "FlatFace"
sketch6.addGeometry([
    Part.BSplineCurve([Vector(58.346953, -47.566585, 0), Vector(58.34139, -45.467814, 0), Vector(58.338608, -43.370433, 0), Vector(58.348344, -41.271662, 0)], [4, 4], [0, 1], False, 3, [1, 1, 1, 1], False),  # 0
    Part.BSplineCurve([Vector(65.436043, -47.566585, 0), Vector(58.346953, -47.566585, 0)], [2, 2], [0, 50.97], False, 1, [1, 1], False),  # 1
    Part.BSplineCurve([Vector(65.440216, -68.743451, 0), Vector(65.431871, -61.683568, 0), Vector(65.438825, -54.625077, 0), Vector(65.436043, -47.566585, 0)], [4, 4], [0, 1], False, 3, [1, 1, 1, 1], False),  # 2
    Part.BSplineCurve([Vector(72.109274, -68.744842, 0), Vector(69.886718, -68.739279, 0), Vector(67.662772, -68.74206, 0), Vector(65.440216, -68.743451, 0)], [4, 4], [0, 1], False, 3, [1, 1, 1, 1], False),  # 3
    Part.BSplineCurve([Vector(72.116228, -47.566585, 0), Vector(72.112055, -54.626467, 0), Vector(72.125964, -61.684959, 0), Vector(72.109274, -68.744842, 0)], [4, 4], [0, 1], False, 3, [1, 1, 1, 1], False),  # 4
    Part.BSplineCurve([Vector(79.217836, -47.55824, 0), Vector(76.850633, -47.577712, 0), Vector(74.48343, -47.561022, 0), Vector(72.116228, -47.566585, 0)], [4, 4], [0, 1], False, 3, [1, 1, 1, 1], False),  # 5
    Part.BSplineCurve([Vector(79.203927, -41.271662, 0), Vector(79.222008, -43.366261, 0), Vector(79.196973, -45.46225, 0), Vector(79.217836, -47.55824, 0)], [4, 4], [0, 1], False, 3, [1, 1, 1, 1], False),  # 6
    Part.BSplineCurve([Vector(58.348344, -41.271662, 0), Vector(65.301132, -41.273053, 0), Vector(72.25253, -41.274444, 0), Vector(79.203927, -41.271662, 0)], [4, 4], [0, 1], False, 3, [1, 1, 1, 1], False),  # 7
], False)
sketch6.addConstraint([
    Sketcher.Constraint("Block", 0),
    Sketcher.Constraint("Block", 1),
    Sketcher.Constraint("Block", 2),
    Sketcher.Constraint("Block", 3),
    Sketcher.Constraint("Block", 4),
    Sketcher.Constraint("Block", 5),
    Sketcher.Constraint("Block", 6),
    Sketcher.Constraint("Block", 7),
])
pocket5 = doc.addObject("PartDesign::Pocket", "Pocket004")
body.addObject(pocket5)
pocket5.Profile = sketch6
pocket5.Length = 5

# Sketch on XY plane
sketch7 = doc.addObject("Sketcher::SketchObject", "Sketch006")
body.addObject(sketch7)
sketch7.AttachmentSupport = (doc.XY_Plane, [""])
sketch7.MapMode = "FlatFace"
sketch7.addGeometry([
    Part.BSplineCurve([Vector(159.076846, -41.274444, 0), Vector(161.303575, -41.273053, 0), Vector(163.530303, -41.273053, 0), Vector(165.757031, -41.274444, 0)], [4, 4], [0, 1], False, 3, [1, 1, 1, 1], False),  # 0
    Part.BSplineCurve([Vector(159.075456, -61.611245, 0), Vector(159.079628, -54.832311, 0), Vector(159.075456, -48.053377, 0), Vector(159.076846, -41.274444, 0)], [4, 4], [0, 1], False, 3, [1, 1, 1, 1], False),  # 1
    Part.BSplineCurve([Vector(163.661041, -68.185726, 0), Vector(161.026798, -67.135645, 0), Vector(159.131089, -64.452723, 0), Vector(159.075456, -61.611245, 0)], [4, 4], [0, 1], False, 3, [1, 1, 1, 1], False),  # 2
    Part.BSplineCurve([Vector(168.560956, -68.74206, 0), Vector(166.91977, -68.732324, 0), Vector(165.202087, -68.872799, 0), Vector(163.661041, -68.185726, 0)], [4, 4], [0, 1], False, 3, [1, 1, 1, 1], False),  # 3
    Part.BSplineCurve([Vector(174.396903, -68.736497, 0), Vector(172.452514, -68.749014, 0), Vector(170.506735, -68.737888, 0), Vector(168.560956, -68.74206, 0)], [4, 4], [0, 1], False, 3, [1, 1, 1, 1], False),  # 4
    Part.BSplineCurve([Vector(179.092365, -67.01186, 0), Vector(177.793324, -68.117575, 0), Vector(176.099286, -68.722588, 0), Vector(174.396903, -68.736497, 0)], [4, 4], [0, 1], False, 3, [1, 1, 1, 1], False),  # 5
    Part.BSplineCurve([Vector(181.754424, -61.193994, 0), Vector(181.811449, -63.404032, 0), Vector(180.796139, -65.607116, 0), Vector(179.092365, -67.01186, 0)], [4, 4], [0, 1], False, 3, [1, 1, 1, 1], False),  # 6
    Part.BSplineCurve([Vector(181.753034, -41.275835, 0), Vector(181.751643, -47.915685, 0), Vector(181.750252, -54.555535, 0), Vector(181.754424, -61.193994, 0)], [4, 4], [0, 1], False, 3, [1, 1, 1, 1], False),  # 7
    Part.BSplineCurve([Vector(175.039469, -41.273053, 0), Vector(177.277324, -41.275835, 0), Vector(179.515179, -41.26888, 0), Vector(181.753034, -41.275835, 0)], [4, 4], [0, 1], False, 3, [1, 1, 1, 1], False),  # 8
    Part.BSplineCurve([Vector(175.032515, -60.63766, 0), Vector(175.04086, -54.182791, 0), Vector(175.026952, -47.727922, 0), Vector(175.039469, -41.273053, 0)], [4, 4], [0, 1], False, 3, [1, 1, 1, 1], False),  # 9
    Part.BSplineCurve([Vector(173.16045, -62.337261, 0), Vector(174.103437, -62.378986, 0), Vector(175.008871, -61.594555, 0), Vector(175.032515, -60.63766, 0)], [4, 4], [0, 1], False, 3, [1, 1, 1, 1], False),  # 10
    Part.BSplineCurve([Vector(167.606842, -62.33587, 0), Vector(169.456654, -62.342825, 0), Vector(171.309247, -62.342825, 0), Vector(173.16045, -62.337261, 0)], [4, 4], [0, 1], False, 3, [1, 1, 1, 1], False),  # 11
    Part.BSplineCurve([Vector(165.759813, -60.498576, 0), Vector(165.72226, -61.493024, 0), Vector(166.615177, -62.370641, 0), Vector(167.606842, -62.33587, 0)], [4, 4], [0, 1], False, 3, [1, 1, 1, 1], False),  # 12
    Part.BSplineCurve([Vector(165.757031, -41.274444, 0), Vector(165.758422, -47.682024, 0), Vector(165.752858, -54.090996, 0), Vector(165.759813, -60.498576, 0)], [4, 4], [0, 1], False, 3, [1, 1, 1, 1], False),  # 13
], False)
sketch7.addConstraint([
    Sketcher.Constraint("Block", 0),
    Sketcher.Constraint("Block", 1),
    Sketcher.Constraint("Block", 2),
    Sketcher.Constraint("Block", 3),
    Sketcher.Constraint("Block", 4),
    Sketcher.Constraint("Block", 5),
    Sketcher.Constraint("Block", 6),
    Sketcher.Constraint("Block", 7),
    Sketcher.Constraint("Block", 8),
    Sketcher.Constraint("Block", 9),
    Sketcher.Constraint("Block", 10),
    Sketcher.Constraint("Block", 11),
    Sketcher.Constraint("Block", 12),
    Sketcher.Constraint("Block", 13),
])
pocket6 = doc.addObject("PartDesign::Pocket", "Pocket005")
body.addObject(pocket6)
pocket6.Profile = sketch7
pocket6.Length = 5

# Sketch on XY plane
sketch8 = doc.addObject("Sketcher::SketchObject", "Sketch007")
body.addObject(sketch8)
sketch8.AttachmentSupport = (doc.XY_Plane, [""])
sketch8.MapMode = "FlatFace"
sketch8.addGeometry([
    Part.BSplineCurve([Vector(186.78925, -41.274444, 0), Vector(193.326178, -41.271662, 0), Vector(199.863107, -41.273053, 0), Vector(206.400035, -41.274444, 0)], [4, 4], [0, 1], False, 3, [1, 1, 1, 1], False),  # 0
    Part.BSplineCurve([Vector(186.78925, -47.566585, 0), Vector(186.78925, -41.274444, 0)], [2, 2], [0, 45.24], False, 1, [1, 1], False),  # 1
    Part.BSplineCurve([Vector(197.807451, -47.566585, 0), Vector(186.78925, -47.566585, 0)], [2, 2], [0, 79.22], False, 1, [1, 1], False),  # 2
    Part.BSplineCurve([Vector(186.650166, -62.153671, 0), Vector(190.370652, -57.2927, 0), Vector(194.092529, -52.431729, 0), Vector(197.807451, -47.566585, 0)], [4, 4], [0, 1], False, 3, [1, 1, 1, 1], False),  # 3
    Part.BSplineCurve([Vector(186.650166, -68.74206, 0), Vector(186.650166, -62.153671, 0)], [2, 2], [0, 47.37], False, 1, [1, 1], False),  # 4
    Part.BSplineCurve([Vector(206.400035, -68.74206, 0), Vector(199.817209, -68.740669, 0), Vector(193.232992, -68.74206, 0), Vector(186.650166, -68.74206, 0)], [4, 4], [0, 1], False, 3, [1, 1, 1, 1], False),  # 5
    Part.BSplineCurve([Vector(206.400035, -62.338652, 0), Vector(206.400035, -68.74206, 0)], [2, 2], [0, 46.04], False, 1, [1, 1], False),  # 6
    Part.BSplineCurve([Vector(195.123138, -62.337261, 0), Vector(198.882567, -62.342825, 0), Vector(202.640606, -62.340043, 0), Vector(206.400035, -62.338652, 0)], [4, 4], [0, 1], False, 3, [1, 1, 1, 1], False),  # 7
    Part.BSplineCurve([Vector(206.397253, -47.787728, 0), Vector(202.618352, -52.620882, 0), Vector(198.88674, -57.491589, 0), Vector(195.123138, -62.337261, 0)], [4, 4], [0, 1], False, 3, [1, 1, 1, 1], False),  # 8
    Part.BSplineCurve([Vector(206.400035, -41.274444, 0), Vector(206.397253, -43.444148, 0), Vector(206.404208, -45.616633, 0), Vector(206.397253, -47.787728, 0)], [4, 4], [0, 1], False, 3, [1, 1, 1, 1], False),  # 9
], False)
sketch8.addConstraint([
    Sketcher.Constraint("Block", 0),
    Sketcher.Constraint("Block", 1),
    Sketcher.Constraint("Block", 2),
    Sketcher.Constraint("Block", 3),
    Sketcher.Constraint("Block", 4),
    Sketcher.Constraint("Block", 5),
    Sketcher.Constraint("Block", 6),
    Sketcher.Constraint("Block", 7),
    Sketcher.Constraint("Block", 8),
    Sketcher.Constraint("Block", 9),
])
pocket7 = doc.addObject("PartDesign::Pocket", "Pocket006")
body.addObject(pocket7)
pocket7.Profile = sketch8
pocket7.Length = 5

# Sketch on XY plane
sketch9 = doc.addObject("Sketcher::SketchObject", "Sketch008")
body.addObject(sketch9)
sketch9.AttachmentSupport = (doc.XY_Plane, [""])
sketch9.MapMode = "FlatFace"
sketch9.addGeometry([
    Part.BSplineCurve([Vector(211.469632, -47.562412, 0), Vector(211.48354, -45.465032, 0), Vector(211.465459, -43.369042, 0), Vector(211.479367, -41.273053, 0)], [4, 4], [0, 1], False, 3, [1, 1, 1, 1], False),  # 0
    Part.BSplineCurve([Vector(222.487833, -47.569367, 0), Vector(218.814636, -47.559631, 0), Vector(215.142829, -47.573539, 0), Vector(211.469632, -47.562412, 0)], [4, 4], [0, 1], False, 3, [1, 1, 1, 1], False),  # 1
    Part.BSplineCurve([Vector(211.476586, -61.958954, 0), Vector(215.147001, -57.163352, 0), Vector(218.810463, -52.362187, 0), Vector(222.487833, -47.569367, 0)], [4, 4], [0, 1], False, 3, [1, 1, 1, 1], False),  # 2
    Part.BSplineCurve([Vector(211.331939, -62.589003, 0), Vector(211.336111, -62.372032, 0), Vector(211.304122, -62.125854, 0), Vector(211.476586, -61.958954, 0)], [4, 4], [0, 1], False, 3, [1, 1, 1, 1], False),  # 3
    Part.BSplineCurve([Vector(211.341675, -68.743451, 0), Vector(211.324985, -66.691968, 0), Vector(211.343066, -64.640485, 0), Vector(211.331939, -62.589003, 0)], [4, 4], [0, 1], False, 3, [1, 1, 1, 1], False),  # 4
    Part.BSplineCurve([Vector(231.084589, -68.743451, 0), Vector(224.503154, -68.740669, 0), Vector(217.921719, -68.740669, 0), Vector(211.341675, -68.743451, 0)], [4, 4], [0, 1], False, 3, [1, 1, 1, 1], False),  # 5
    Part.BSplineCurve([Vector(231.088762, -62.342825, 0), Vector(231.08598, -64.476367, 0), Vector(231.095716, -66.609909, 0), Vector(231.084589, -68.743451, 0)], [4, 4], [0, 1], False, 3, [1, 1, 1, 1], False),  # 6
    Part.BSplineCurve([Vector(219.828555, -62.337261, 0), Vector(223.582421, -62.344215, 0), Vector(227.334896, -62.33448, 0), Vector(231.088762, -62.342825, 0)], [4, 4], [0, 1], False, 3, [1, 1, 1, 1], False),  # 7
    Part.BSplineCurve([Vector(227.12627, -52.878187, 0), Vector(224.695089, -56.032603, 0), Vector(222.25, -59.175891, 0), Vector(219.828555, -62.337261, 0)], [4, 4], [0, 1], False, 3, [1, 1, 1, 1], False),  # 8
    Part.BSplineCurve([Vector(231.077635, -47.723749, 0), Vector(229.80502, -49.47203, 0), Vector(228.433656, -51.15355, 0), Vector(227.12627, -52.878187, 0)], [4, 4], [0, 1], False, 3, [1, 1, 1, 1], False),  # 9
    Part.BSplineCurve([Vector(231.088762, -41.274444, 0), Vector(231.081807, -43.424676, 0), Vector(231.105452, -45.574908, 0), Vector(231.077635, -47.723749, 0)], [4, 4], [0, 1], False, 3, [1, 1, 1, 1], False),  # 10
    Part.BSplineCurve([Vector(211.479367, -41.273053, 0), Vector(218.014905, -41.274444, 0), Vector(224.551833, -41.271662, 0), Vector(231.088762, -41.274444, 0)], [4, 4], [0, 1], False, 3, [1, 1, 1, 1], False),  # 11
], False)
sketch9.addConstraint([
    Sketcher.Constraint("Block", 0),
    Sketcher.Constraint("Block", 1),
    Sketcher.Constraint("Block", 2),
    Sketcher.Constraint("Block", 3),
    Sketcher.Constraint("Block", 4),
    Sketcher.Constraint("Block", 5),
    Sketcher.Constraint("Block", 6),
    Sketcher.Constraint("Block", 7),
    Sketcher.Constraint("Block", 8),
    Sketcher.Constraint("Block", 9),
    Sketcher.Constraint("Block", 10),
    Sketcher.Constraint("Block", 11),
])
pocket8 = doc.addObject("PartDesign::Pocket", "Pocket007")
body.addObject(pocket8)
pocket8.Profile = sketch9
pocket8.Length = 5

# Sketch on XY plane
sketch10 = doc.addObject("Sketcher::SketchObject", "Sketch009")
body.addObject(sketch10)
sketch10.AttachmentSupport = (doc.XY_Plane, [""])
sketch10.MapMode = "FlatFace"
sketch10.addGeometry([
    Part.BSplineCurve([Vector(236.024838, -41.273053, 0), Vector(238.215404, -41.274444, 0), Vector(240.40458, -41.271662, 0), Vector(242.595146, -41.274444, 0)], [4, 4], [0, 1], False, 3, [1, 1, 1, 1], False),
    Part.BSplineCurve([Vector(236.024838, -68.74206, 0), Vector(236.024838, -41.273053, 0)], [2, 2], [0, 197.5], False, 1, [1, 1], False),
    Part.BSplineCurve([Vector(242.595146, -68.740669, 0), Vector(240.40458, -68.743451, 0), Vector(238.215404, -68.740669, 0), Vector(236.024838, -68.74206, 0)], [4, 4], [0, 1], False, 3, [1, 1, 1, 1], False),
    Part.BSplineCurve([Vector(242.595146, -41.274444, 0), Vector(242.596537, -50.430316, 0), Vector(242.596537, -59.586188, 0), Vector(242.595146, -68.740669, 0)], [4, 4], [0, 1], False, 3, [1, 1, 1, 1], False),
], False)
sketch10.addConstraint([
    Sketcher.Constraint("Block", 0),
    Sketcher.Constraint("Block", 1),
    Sketcher.Constraint("Block", 2),
    Sketcher.Constraint("Block", 3),
])
pocket9 = doc.addObject("PartDesign::Pocket", "Pocket008")
body.addObject(pocket9)
pocket9.Profile = sketch10
pocket9.Length = 5

doc.recompute()
